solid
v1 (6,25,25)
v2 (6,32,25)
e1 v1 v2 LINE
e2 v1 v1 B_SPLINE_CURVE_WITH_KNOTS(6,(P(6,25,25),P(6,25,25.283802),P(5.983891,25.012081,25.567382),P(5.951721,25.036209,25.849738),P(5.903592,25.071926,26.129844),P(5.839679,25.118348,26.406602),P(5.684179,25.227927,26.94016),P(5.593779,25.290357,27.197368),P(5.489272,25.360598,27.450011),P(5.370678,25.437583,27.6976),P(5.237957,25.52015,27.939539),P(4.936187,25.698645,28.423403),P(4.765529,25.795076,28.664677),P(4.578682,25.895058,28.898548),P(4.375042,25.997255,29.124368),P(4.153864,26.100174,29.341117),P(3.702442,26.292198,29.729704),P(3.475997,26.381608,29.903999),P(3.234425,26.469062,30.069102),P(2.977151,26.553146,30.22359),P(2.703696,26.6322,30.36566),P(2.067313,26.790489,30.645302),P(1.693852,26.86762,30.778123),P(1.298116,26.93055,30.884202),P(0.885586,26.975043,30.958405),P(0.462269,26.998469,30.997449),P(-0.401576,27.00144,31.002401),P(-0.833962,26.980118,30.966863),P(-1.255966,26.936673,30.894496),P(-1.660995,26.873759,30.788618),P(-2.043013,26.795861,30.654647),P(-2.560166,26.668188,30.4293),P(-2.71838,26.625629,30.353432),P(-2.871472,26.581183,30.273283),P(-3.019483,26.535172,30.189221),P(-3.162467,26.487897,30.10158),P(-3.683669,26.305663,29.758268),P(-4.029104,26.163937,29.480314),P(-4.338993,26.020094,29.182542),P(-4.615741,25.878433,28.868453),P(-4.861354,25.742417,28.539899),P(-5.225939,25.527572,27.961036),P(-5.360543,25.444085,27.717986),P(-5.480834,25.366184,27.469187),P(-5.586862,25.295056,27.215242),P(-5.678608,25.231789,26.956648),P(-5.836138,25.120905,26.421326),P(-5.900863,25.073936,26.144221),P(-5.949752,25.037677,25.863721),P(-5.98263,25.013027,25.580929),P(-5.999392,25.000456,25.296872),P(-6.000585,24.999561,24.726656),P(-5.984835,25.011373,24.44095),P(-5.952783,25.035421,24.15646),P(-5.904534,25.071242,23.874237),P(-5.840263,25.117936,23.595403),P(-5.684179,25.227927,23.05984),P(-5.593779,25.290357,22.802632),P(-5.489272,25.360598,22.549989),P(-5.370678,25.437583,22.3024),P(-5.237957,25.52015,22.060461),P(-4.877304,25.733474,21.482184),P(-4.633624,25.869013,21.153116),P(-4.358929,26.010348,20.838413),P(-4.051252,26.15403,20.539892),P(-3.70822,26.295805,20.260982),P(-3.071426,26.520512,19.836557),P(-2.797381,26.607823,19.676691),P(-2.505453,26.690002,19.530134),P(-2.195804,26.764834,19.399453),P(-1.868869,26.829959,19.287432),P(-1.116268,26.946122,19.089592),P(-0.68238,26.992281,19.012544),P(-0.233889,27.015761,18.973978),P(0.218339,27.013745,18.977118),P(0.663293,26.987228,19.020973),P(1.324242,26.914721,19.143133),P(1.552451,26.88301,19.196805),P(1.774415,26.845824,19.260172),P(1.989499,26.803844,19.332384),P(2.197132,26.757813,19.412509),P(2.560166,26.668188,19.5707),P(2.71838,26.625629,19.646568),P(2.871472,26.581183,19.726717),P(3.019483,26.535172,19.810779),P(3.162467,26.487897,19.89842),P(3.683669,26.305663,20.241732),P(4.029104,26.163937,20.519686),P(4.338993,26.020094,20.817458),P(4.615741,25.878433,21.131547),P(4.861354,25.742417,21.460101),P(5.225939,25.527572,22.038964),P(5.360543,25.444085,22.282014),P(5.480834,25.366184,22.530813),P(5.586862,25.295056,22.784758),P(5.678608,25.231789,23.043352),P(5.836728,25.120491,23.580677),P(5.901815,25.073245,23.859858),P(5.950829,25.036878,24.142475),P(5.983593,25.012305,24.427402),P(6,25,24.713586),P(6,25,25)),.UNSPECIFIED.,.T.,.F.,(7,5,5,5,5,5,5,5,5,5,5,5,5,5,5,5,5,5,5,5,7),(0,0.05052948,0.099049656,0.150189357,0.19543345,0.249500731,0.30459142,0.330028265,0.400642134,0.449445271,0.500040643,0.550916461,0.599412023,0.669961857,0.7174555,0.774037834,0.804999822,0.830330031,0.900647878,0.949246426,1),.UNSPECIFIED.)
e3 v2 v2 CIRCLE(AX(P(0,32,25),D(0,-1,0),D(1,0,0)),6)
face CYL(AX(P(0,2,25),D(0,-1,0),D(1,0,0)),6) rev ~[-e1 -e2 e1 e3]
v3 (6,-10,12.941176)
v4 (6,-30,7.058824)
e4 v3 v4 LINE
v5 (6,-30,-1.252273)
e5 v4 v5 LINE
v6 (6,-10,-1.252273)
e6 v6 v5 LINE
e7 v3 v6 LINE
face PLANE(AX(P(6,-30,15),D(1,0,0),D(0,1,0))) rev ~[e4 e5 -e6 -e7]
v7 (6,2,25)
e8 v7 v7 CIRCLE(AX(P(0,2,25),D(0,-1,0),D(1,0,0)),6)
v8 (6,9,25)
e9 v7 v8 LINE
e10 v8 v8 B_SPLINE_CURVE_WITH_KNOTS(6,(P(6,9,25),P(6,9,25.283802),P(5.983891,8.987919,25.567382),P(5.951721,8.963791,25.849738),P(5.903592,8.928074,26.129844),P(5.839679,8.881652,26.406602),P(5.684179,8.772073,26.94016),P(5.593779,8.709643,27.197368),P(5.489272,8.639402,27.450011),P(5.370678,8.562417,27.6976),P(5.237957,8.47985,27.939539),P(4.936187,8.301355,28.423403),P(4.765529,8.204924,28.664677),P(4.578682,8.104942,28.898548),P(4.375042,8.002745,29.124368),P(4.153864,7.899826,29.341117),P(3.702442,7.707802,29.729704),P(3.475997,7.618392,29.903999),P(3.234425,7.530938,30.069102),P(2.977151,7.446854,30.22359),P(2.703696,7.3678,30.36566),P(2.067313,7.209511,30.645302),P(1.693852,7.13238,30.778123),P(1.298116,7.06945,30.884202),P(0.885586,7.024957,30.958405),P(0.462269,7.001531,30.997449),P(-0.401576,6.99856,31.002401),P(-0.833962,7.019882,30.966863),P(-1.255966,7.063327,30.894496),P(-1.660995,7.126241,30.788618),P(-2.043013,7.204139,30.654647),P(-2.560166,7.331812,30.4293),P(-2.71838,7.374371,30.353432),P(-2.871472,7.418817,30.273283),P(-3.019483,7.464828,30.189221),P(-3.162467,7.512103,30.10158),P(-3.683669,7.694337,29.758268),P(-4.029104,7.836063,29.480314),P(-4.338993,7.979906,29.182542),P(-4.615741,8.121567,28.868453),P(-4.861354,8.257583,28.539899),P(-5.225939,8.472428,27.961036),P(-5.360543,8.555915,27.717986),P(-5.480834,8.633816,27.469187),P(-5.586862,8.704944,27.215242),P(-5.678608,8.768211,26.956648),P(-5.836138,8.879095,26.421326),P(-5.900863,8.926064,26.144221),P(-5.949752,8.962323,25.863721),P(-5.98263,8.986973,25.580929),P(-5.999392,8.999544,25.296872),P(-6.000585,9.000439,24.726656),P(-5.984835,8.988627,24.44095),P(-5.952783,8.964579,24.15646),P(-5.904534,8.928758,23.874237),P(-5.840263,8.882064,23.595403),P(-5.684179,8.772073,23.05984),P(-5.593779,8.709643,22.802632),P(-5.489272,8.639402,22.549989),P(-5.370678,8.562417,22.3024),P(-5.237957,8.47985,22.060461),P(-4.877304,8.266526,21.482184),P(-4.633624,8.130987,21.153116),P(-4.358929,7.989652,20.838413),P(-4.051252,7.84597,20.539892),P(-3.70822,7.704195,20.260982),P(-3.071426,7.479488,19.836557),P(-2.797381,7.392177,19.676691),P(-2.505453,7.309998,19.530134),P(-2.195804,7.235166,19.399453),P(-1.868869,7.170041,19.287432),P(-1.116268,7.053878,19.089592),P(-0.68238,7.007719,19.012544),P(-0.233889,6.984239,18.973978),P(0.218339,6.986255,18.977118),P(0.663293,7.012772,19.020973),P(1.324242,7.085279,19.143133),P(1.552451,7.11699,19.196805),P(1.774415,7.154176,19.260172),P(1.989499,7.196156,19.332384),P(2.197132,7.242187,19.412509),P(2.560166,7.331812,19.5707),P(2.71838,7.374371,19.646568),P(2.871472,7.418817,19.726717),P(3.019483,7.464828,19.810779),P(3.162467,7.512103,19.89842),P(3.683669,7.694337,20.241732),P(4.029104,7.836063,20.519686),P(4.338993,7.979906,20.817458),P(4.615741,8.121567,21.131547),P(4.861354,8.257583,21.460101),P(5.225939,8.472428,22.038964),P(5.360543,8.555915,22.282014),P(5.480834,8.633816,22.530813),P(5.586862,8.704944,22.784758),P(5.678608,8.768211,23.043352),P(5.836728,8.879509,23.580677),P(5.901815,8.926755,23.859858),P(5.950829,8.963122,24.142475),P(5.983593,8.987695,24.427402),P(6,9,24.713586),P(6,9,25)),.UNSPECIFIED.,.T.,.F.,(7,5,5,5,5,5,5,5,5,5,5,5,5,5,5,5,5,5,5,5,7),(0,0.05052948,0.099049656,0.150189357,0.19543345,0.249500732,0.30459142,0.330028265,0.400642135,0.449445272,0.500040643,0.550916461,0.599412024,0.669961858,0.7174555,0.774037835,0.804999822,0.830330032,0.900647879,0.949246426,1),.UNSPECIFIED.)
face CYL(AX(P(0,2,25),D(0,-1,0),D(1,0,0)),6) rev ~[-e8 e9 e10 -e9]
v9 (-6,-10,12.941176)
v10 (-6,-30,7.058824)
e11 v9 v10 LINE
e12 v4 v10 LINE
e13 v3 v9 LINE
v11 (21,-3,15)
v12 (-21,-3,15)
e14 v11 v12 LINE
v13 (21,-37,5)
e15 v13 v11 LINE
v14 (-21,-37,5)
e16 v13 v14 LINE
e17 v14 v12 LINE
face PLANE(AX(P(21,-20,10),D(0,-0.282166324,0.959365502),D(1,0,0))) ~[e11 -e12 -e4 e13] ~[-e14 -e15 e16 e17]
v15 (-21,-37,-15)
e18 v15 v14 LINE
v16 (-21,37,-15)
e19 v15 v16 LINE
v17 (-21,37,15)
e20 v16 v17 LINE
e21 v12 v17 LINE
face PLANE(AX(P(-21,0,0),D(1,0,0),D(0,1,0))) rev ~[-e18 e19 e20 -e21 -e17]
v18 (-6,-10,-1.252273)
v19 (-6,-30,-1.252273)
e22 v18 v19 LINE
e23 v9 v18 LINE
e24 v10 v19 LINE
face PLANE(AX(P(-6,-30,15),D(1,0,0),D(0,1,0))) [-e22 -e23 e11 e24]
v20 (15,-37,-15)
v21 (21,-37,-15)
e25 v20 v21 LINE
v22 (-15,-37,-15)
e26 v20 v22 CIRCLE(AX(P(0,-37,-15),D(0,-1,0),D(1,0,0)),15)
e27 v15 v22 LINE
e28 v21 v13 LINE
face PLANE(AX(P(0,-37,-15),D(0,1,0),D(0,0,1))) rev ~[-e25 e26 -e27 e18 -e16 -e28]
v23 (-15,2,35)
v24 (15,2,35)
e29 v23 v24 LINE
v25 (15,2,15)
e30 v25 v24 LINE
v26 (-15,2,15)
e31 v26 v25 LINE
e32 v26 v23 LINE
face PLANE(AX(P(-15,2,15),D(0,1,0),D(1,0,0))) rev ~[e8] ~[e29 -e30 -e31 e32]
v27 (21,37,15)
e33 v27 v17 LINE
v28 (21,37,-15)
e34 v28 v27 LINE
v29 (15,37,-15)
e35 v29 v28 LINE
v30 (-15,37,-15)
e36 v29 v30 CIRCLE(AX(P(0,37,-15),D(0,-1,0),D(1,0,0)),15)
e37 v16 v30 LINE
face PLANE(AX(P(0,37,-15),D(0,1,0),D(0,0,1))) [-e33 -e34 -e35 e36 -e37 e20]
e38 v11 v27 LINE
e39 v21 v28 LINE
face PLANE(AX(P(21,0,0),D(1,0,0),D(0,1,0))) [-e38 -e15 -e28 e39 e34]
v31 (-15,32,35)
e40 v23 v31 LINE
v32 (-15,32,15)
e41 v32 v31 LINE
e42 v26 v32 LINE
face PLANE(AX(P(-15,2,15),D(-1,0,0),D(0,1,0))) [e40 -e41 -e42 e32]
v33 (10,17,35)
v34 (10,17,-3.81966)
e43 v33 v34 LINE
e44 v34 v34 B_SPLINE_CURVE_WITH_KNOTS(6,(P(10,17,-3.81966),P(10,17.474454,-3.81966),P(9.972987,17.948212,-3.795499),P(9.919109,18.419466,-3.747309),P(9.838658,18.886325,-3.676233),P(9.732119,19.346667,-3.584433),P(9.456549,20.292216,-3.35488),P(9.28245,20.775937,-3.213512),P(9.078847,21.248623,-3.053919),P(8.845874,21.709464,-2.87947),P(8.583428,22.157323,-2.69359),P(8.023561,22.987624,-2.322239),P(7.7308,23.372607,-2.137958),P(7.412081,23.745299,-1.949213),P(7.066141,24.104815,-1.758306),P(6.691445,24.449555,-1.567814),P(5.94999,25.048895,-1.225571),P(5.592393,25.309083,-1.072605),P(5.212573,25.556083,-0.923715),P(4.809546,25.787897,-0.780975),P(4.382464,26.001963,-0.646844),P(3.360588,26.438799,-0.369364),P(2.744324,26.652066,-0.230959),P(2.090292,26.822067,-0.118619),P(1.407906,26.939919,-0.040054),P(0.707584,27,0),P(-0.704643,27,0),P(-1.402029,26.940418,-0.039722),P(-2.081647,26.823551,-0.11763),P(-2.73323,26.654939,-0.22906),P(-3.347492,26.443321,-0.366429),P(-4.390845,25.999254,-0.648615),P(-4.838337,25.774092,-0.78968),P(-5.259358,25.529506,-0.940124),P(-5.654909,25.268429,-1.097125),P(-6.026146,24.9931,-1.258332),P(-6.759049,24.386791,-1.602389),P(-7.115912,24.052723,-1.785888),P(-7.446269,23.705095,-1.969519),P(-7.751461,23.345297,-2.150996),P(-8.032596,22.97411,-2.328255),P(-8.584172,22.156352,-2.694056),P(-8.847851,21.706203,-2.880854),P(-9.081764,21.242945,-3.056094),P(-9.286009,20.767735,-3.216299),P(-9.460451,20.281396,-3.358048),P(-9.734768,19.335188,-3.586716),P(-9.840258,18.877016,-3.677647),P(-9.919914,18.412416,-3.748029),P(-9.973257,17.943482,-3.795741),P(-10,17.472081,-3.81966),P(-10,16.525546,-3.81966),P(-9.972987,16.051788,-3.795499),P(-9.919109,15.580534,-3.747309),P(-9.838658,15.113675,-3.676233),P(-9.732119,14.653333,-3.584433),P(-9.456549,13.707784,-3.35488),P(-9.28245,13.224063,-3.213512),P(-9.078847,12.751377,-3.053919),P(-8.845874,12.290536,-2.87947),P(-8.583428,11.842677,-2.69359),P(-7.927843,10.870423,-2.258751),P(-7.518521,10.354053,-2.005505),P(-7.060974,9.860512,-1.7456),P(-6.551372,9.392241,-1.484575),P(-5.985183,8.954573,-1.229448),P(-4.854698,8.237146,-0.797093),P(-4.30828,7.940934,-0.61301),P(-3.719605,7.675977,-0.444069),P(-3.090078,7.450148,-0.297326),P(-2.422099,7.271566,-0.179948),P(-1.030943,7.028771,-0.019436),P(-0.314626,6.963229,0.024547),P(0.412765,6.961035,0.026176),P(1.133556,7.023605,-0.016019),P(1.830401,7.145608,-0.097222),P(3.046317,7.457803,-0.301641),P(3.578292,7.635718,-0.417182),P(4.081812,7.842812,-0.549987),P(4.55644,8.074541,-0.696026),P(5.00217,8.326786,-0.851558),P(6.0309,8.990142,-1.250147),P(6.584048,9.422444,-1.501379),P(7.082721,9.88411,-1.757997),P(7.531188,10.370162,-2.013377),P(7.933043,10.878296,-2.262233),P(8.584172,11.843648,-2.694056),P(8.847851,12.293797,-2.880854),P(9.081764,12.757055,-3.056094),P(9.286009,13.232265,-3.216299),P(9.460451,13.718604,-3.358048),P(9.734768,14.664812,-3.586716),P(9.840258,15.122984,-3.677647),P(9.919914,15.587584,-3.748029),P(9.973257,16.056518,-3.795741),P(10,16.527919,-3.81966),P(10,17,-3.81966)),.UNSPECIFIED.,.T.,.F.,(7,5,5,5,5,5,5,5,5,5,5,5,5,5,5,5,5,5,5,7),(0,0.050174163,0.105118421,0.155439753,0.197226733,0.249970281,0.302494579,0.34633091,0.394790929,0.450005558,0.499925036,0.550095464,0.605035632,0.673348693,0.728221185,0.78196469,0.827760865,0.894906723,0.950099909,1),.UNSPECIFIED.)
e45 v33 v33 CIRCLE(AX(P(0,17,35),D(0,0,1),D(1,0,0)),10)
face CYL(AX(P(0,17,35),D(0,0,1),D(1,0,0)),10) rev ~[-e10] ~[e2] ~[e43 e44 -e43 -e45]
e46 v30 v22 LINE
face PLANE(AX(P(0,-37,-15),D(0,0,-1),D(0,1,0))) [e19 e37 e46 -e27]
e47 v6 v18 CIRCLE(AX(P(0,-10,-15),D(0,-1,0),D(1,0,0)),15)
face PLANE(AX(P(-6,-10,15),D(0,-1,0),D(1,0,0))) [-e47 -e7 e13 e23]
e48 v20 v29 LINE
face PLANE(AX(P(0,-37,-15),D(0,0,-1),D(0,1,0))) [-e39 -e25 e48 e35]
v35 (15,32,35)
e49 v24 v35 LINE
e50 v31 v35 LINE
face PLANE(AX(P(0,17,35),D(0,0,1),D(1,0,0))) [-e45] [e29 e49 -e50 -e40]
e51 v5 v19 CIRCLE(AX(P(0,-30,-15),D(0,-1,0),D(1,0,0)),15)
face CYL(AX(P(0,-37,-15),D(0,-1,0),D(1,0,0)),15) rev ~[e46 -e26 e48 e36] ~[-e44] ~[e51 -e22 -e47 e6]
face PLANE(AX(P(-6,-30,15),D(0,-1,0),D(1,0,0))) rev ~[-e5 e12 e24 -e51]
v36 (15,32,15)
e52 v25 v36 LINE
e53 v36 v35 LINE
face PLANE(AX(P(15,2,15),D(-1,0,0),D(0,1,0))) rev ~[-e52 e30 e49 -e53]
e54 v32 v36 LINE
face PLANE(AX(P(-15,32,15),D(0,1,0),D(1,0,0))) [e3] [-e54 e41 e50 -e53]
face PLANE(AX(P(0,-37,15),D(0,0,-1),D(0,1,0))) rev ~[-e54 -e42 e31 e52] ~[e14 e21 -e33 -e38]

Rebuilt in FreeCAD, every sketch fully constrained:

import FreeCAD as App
import Part
import Sketcher

V = App.Vector


def edges_at(feature, points):
    """Names of the edges that pass closest to the given points."""
    edges = feature.Shape.Edges
    near = lambda p: min(range(len(edges)), key=lambda i: edges[i].distToShape(Part.Vertex(*p))[0])
    return sorted({f"Edge{near(p) + 1}" for p in points})


def add_polygon(sketch, points):
    """Adds a closed chain of lines whose ends are joined by coincident constraints."""
    first, n = sketch.GeometryCount, len(points)
    for a, b in zip(points, points[1:] + points[:1]):
        sketch.addGeometry(Part.LineSegment(App.Vector(*a, 0), App.Vector(*b, 0)), False)
    for i in range(n):
        sketch.addConstraint(Sketcher.Constraint("Coincident", first + i, 2, first + (i + 1) % n, 1))

doc = App.newDocument("Part")
body = doc.addObject("PartDesign::Body", "Body")

sketch1 = body.newObject("Sketcher::SketchObject", "Sketch")
sketch1.AttachmentSupport = (doc.getObject("YZ_Plane"), [""])
sketch1.MapMode = "FlatFace"
add_polygon(sketch1, [(-37, 15), (-37, -15), (37, -15), (37, 15)])
sketch1.addConstraint(Sketcher.Constraint("Vertical", 0))
sketch1.addConstraint(Sketcher.Constraint("Horizontal", 1))
sketch1.addConstraint(Sketcher.Constraint("Vertical", 2))
sketch1.addConstraint(Sketcher.Constraint("Horizontal", 3))
sketch1.addConstraint(Sketcher.Constraint("Symmetric", 0, 2, 2, 2, -1, 1))
sketch1.addConstraint(Sketcher.Constraint("DistanceX", 1, 1, 1, 2, 74.0))
sketch1.addConstraint(Sketcher.Constraint("DistanceY", 0, 2, 0, 1, 30.0))
pad1 = body.newObject("PartDesign::Pad", "Pad")
pad1.Profile = sketch1
pad1.Length = 42
pad1.Midplane = True
doc.recompute()

chamfer = body.newObject("PartDesign::Chamfer", "Chamfer")
chamfer.Base = (pad1, edges_at(pad1, [(0, -37, 15)]))
chamfer.ChamferType = "Two distances"
chamfer.Size = 10
chamfer.Size2 = 34

sketch2 = body.newObject("Sketcher::SketchObject", "Sketch001")
sketch2.AttachmentSupport = (doc.getObject("XY_Plane"), [""])
sketch2.MapMode = "FlatFace"
sketch2.AttachmentOffset = App.Placement(V(0, 0, 15), App.Rotation())
add_polygon(sketch2, [(-15, 32), (-15, 2), (15, 2), (15, 32)])
sketch2.addConstraint(Sketcher.Constraint("Vertical", 0))
sketch2.addConstraint(Sketcher.Constraint("Horizontal", 1))
sketch2.addConstraint(Sketcher.Constraint("Vertical", 2))
sketch2.addConstraint(Sketcher.Constraint("Horizontal", 3))
sketch2.addConstraint(Sketcher.Constraint("Equal", 3, 0))
sketch2.addConstraint(Sketcher.Constraint("DistanceX", 1, 1, 1, 2, 30.0))
sketch2.addConstraint(Sketcher.Constraint("DistanceX", 0, 2, -1, 1, 15.0))
sketch2.addConstraint(Sketcher.Constraint("DistanceY", -1, 1, 0, 2, 2.0))
pad2 = body.newObject("PartDesign::Pad", "Pad001")
pad2.Profile = sketch2
pad2.Length = 20

sketch3 = body.newObject("Sketcher::SketchObject", "Sketch002")
sketch3.AttachmentSupport = (doc.getObject("XY_Plane"), [""])
sketch3.MapMode = "FlatFace"
sketch3.AttachmentOffset = App.Placement(V(0, 0, 35), App.Rotation())
sketch3.addGeometry(Part.Circle(V(0, 17, 0), V(0, 0, 1), 10), False)
sketch3.addConstraint(Sketcher.Constraint("PointOnObject", 0, 3, -2))
sketch3.addConstraint(Sketcher.Constraint("Diameter", 0, 20.0))
sketch3.addConstraint(Sketcher.Constraint("DistanceY", -1, 1, 0, 3, 17.0))
pocket1 = body.newObject("PartDesign::Pocket", "Pocket")
pocket1.Profile = sketch3
pocket1.Type = "ThroughAll"

sketch4 = body.newObject("Sketcher::SketchObject", "Sketch003")
sketch4.AttachmentSupport = (doc.getObject("XZ_Plane"), [""])
sketch4.MapMode = "FlatFace"
sketch4.AttachmentOffset = App.Placement(V(0, 0, -2), App.Rotation())
sketch4.addGeometry(Part.Circle(V(0, 25, 0), V(0, 0, 1), 6), False)
sketch4.addConstraint(Sketcher.Constraint("PointOnObject", 0, 3, -2))
sketch4.addConstraint(Sketcher.Constraint("Diameter", 0, 12.0))
sketch4.addConstraint(Sketcher.Constraint("DistanceY", -1, 1, 0, 3, 25.0))
pocket2 = body.newObject("PartDesign::Pocket", "Pocket001")
pocket2.Profile = sketch4
pocket2.Type = "ThroughAll"

sketch5 = body.newObject("Sketcher::SketchObject", "Sketch004")
sketch5.AttachmentSupport = (doc.getObject("XY_Plane"), [""])
sketch5.MapMode = "FlatFace"
sketch5.AttachmentOffset = App.Placement(V(0, 0, 15), App.Rotation())
add_polygon(sketch5, [(-6, -10), (-6, -30), (6, -30), (6, -10)])
sketch5.addConstraint(Sketcher.Constraint("Vertical", 0))
sketch5.addConstraint(Sketcher.Constraint("Horizontal", 1))
sketch5.addConstraint(Sketcher.Constraint("Vertical", 2))
sketch5.addConstraint(Sketcher.Constraint("Horizontal", 3))
sketch5.addConstraint(Sketcher.Constraint("DistanceX", 1, 1, 1, 2, 12.0))
sketch5.addConstraint(Sketcher.Constraint("DistanceY", 0, 2, 0, 1, 20.0))
sketch5.addConstraint(Sketcher.Constraint("DistanceX", 0, 2, -1, 1, 6.0))
sketch5.addConstraint(Sketcher.Constraint("DistanceY", 0, 2, -1, 1, 30.0))
pocket3 = body.newObject("PartDesign::Pocket", "Pocket002")
pocket3.Profile = sketch5
pocket3.Type = "ThroughAll"

sketch6 = body.newObject("Sketcher::SketchObject", "Sketch005")
sketch6.AttachmentSupport = (doc.getObject("XZ_Plane"), [""])
sketch6.MapMode = "FlatFace"
sketch6.AttachmentOffset = App.Placement(V(0, 0, 37), App.Rotation())
sketch6.addGeometry(Part.Circle(V(0, -15, 0), V(0, 0, 1), 15), False)
sketch6.addConstraint(Sketcher.Constraint("PointOnObject", 0, 3, -2))
sketch6.addConstraint(Sketcher.Constraint("Diameter", 0, 30.0))
sketch6.addConstraint(Sketcher.Constraint("DistanceY", 0, 3, -1, 1, 15.0))
pocket4 = body.newObject("PartDesign::Pocket", "Pocket003")
pocket4.Profile = sketch6
pocket4.Type = "ThroughAll"

doc.recompute()
